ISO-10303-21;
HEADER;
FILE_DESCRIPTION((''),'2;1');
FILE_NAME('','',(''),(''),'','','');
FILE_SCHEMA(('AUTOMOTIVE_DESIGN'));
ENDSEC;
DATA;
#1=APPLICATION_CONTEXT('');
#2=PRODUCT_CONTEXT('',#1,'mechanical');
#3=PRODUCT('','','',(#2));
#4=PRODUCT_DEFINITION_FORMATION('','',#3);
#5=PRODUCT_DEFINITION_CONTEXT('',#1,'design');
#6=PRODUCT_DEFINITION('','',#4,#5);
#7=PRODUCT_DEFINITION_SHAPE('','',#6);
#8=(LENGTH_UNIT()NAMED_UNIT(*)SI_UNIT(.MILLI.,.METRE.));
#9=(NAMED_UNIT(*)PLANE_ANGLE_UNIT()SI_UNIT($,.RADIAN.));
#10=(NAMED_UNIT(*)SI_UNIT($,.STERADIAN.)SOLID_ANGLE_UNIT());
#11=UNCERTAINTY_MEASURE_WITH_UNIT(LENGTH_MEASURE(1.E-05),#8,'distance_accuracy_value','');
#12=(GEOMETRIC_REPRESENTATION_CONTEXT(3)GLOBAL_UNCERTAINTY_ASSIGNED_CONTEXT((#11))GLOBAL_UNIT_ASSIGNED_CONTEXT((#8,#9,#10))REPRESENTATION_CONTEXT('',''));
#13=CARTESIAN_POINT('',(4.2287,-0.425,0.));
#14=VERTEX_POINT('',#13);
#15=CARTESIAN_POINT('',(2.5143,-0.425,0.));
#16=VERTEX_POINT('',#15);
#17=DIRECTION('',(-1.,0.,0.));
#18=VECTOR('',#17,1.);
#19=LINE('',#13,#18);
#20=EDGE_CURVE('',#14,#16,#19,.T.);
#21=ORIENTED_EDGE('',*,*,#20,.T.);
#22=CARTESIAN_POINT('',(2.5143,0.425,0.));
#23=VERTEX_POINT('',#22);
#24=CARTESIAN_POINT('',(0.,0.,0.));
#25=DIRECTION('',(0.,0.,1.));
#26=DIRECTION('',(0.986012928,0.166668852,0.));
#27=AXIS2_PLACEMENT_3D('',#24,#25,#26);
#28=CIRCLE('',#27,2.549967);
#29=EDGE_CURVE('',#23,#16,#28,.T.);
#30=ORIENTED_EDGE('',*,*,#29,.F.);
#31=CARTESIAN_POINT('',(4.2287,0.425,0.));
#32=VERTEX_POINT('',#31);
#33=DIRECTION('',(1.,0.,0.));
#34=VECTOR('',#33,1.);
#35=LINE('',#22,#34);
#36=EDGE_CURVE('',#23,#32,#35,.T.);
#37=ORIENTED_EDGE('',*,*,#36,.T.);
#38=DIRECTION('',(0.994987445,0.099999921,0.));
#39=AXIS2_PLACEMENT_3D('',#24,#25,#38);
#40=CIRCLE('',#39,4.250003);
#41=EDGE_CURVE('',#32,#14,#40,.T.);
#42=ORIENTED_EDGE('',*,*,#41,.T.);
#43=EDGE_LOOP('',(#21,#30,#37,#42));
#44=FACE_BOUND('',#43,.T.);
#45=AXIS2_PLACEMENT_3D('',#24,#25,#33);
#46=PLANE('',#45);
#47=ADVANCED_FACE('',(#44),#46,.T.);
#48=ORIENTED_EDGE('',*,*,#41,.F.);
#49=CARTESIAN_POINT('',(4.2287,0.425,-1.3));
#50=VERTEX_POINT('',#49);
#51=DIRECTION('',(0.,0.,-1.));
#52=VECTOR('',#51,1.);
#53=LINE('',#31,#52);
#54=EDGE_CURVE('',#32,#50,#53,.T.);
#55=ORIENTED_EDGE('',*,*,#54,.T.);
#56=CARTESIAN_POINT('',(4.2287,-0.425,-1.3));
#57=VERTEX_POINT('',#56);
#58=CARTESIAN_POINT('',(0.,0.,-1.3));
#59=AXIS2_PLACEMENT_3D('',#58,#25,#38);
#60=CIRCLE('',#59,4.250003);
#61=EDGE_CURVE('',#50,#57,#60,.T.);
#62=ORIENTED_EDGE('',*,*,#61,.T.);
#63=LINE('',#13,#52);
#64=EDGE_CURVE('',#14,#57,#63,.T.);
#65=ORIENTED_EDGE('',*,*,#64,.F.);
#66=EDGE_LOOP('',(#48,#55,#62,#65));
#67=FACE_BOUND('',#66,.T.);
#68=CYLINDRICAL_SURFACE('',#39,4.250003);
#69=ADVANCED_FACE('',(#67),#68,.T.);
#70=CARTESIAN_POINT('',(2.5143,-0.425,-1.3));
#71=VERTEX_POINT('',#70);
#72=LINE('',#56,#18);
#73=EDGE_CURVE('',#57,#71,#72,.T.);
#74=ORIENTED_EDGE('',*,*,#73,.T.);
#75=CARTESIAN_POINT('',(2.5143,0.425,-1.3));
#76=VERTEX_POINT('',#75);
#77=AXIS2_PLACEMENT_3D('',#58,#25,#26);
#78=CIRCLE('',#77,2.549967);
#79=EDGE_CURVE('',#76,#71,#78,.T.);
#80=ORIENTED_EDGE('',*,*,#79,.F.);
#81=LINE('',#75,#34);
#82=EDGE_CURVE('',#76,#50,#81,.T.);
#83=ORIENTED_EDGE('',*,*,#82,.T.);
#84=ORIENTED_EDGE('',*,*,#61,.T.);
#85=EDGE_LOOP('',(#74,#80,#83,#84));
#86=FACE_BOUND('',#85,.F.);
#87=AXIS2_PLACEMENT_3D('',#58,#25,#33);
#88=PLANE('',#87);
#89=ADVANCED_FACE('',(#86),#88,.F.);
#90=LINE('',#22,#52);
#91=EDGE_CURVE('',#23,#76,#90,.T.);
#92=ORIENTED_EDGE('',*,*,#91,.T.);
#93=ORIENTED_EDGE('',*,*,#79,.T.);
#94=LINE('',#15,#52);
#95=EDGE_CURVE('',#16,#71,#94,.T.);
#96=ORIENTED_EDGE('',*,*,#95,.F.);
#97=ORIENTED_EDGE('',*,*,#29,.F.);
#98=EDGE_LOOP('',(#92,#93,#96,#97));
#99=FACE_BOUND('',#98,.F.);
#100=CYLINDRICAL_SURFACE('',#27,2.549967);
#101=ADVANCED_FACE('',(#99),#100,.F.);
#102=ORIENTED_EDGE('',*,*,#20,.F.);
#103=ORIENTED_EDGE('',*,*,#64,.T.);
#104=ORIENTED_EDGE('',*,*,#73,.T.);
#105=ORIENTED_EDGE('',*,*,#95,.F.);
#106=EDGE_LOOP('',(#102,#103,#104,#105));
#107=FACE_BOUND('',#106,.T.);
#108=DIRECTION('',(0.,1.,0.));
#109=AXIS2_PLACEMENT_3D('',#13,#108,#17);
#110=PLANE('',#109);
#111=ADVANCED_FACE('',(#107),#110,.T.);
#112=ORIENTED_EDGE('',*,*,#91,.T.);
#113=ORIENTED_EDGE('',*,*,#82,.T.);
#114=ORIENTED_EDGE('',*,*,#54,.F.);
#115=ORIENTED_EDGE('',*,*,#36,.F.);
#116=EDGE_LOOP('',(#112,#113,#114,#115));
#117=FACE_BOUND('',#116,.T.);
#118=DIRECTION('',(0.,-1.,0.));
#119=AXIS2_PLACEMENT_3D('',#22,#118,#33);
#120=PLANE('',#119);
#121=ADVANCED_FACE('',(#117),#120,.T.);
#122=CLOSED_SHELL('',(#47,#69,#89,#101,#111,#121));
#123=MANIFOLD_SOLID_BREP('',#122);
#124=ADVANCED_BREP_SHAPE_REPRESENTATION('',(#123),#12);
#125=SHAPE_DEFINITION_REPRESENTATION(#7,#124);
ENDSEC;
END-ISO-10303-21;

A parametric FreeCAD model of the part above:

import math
import FreeCAD as App
import Part
import Sketcher
from FreeCAD import Vector
Q = App.Units.Quantity

doc = App.newDocument("Part")
body = doc.addObject("PartDesign::Body", "Body")

sketch1 = body.newObject("Sketcher::SketchObject", "Sketch")
sketch1.AttachmentSupport = (doc.getObject("XY_Plane"), [""])
sketch1.MapMode = "FlatFace"
sketch1.addGeometry([
    Part.LineSegment(Vector(2.5143, 0.425, 0), Vector(4.2287, 0.425, 0)),
    Part.ArcOfCircle(Part.Circle(Vector(0, 0, 0), Vector(0, 0, 1), 4.250003), math.radians(5.739166), math.radians(354.260834)),
    Part.LineSegment(Vector(4.2287, -0.425, 0), Vector(2.5143, -0.425, 0)),
    Part.ArcOfCircle(Part.Circle(Vector(0, 0, 0), Vector(0, 0, 1), 2.549967), math.radians(9.594195), math.radians(350.405805)),
], False)
sketch1.addConstraint([
    Sketcher.Constraint("Coincident", 0, 2, 1, 1),
    Sketcher.Constraint("Coincident", 1, 2, 2, 1),
    Sketcher.Constraint("Coincident", 2, 2, 3, 2),
    Sketcher.Constraint("Coincident", 3, 1, 0, 1),
    Sketcher.Constraint("Horizontal", 0),
    Sketcher.Constraint("Horizontal", 2),
    Sketcher.Constraint("Coincident", 1, 3, -1, 1),
    Sketcher.Constraint("Coincident", 3, 3, -1, 1),
    Sketcher.Constraint("Vertical", 0, 2, 1, 2),
    Sketcher.Constraint("Radius", 1, Q("4.25 mm")),
    Sketcher.Constraint("Radius", 3, Q("2.55 mm")),
    Sketcher.Constraint("DistanceY", 1, 2, 0, 2, Q("0.85 mm")),
])
pad1 = body.newObject("PartDesign::Pad", "Pad")
pad1.Profile = sketch1
pad1.Length = 1.3
pad1.Reversed = True

doc.recompute()
